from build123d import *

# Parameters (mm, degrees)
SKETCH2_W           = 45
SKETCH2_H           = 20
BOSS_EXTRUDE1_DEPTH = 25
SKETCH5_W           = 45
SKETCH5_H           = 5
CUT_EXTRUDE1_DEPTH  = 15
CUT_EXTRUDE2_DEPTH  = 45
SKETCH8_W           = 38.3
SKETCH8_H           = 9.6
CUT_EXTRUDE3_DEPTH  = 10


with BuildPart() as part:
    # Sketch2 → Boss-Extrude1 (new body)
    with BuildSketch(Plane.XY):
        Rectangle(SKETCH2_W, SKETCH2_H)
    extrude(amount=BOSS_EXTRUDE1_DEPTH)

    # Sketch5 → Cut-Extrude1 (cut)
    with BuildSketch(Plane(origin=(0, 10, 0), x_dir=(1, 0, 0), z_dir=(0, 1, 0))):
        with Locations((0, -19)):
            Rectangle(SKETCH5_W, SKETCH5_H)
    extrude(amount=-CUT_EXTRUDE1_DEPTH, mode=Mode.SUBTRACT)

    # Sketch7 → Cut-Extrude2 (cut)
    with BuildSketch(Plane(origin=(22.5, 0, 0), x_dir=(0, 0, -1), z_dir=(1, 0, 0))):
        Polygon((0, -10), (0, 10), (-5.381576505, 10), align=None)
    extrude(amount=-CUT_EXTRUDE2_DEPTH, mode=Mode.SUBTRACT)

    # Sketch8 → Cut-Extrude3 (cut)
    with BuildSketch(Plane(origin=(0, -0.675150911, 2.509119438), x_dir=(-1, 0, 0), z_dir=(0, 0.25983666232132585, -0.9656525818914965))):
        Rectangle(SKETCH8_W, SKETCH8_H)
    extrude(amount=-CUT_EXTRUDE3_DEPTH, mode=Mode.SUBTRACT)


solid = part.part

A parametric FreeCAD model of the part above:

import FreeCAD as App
import Part
import Sketcher

V = App.Vector

doc = App.newDocument("Part")
body = doc.addObject("PartDesign::Body", "Body")

sketch1 = body.newObject("Sketcher::SketchObject", "Sketch")
sketch1.AttachmentSupport = (doc.getObject("XY_Plane"), [""])
sketch1.MapMode = "FlatFace"
sketch1.addGeometry(Part.LineSegment(V(-22, 10, 0), V(-22, -10, 0)), False)
sketch1.addGeometry(Part.LineSegment(V(-22, -10, 0), V(22, -10, 0)), False)
sketch1.addGeometry(Part.LineSegment(V(22, -10, 0), V(22, 10, 0)), False)
sketch1.addGeometry(Part.LineSegment(V(22, 10, 0), V(-22, 10, 0)), False)
sketch1.addConstraint(Sketcher.Constraint("Coincident", 0, 2, 1, 1))
sketch1.addConstraint(Sketcher.Constraint("Coincident", 1, 2, 2, 1))
sketch1.addConstraint(Sketcher.Constraint("Coincident", 2, 2, 3, 1))
sketch1.addConstraint(Sketcher.Constraint("Coincident", 3, 2, 0, 1))
sketch1.addConstraint(Sketcher.Constraint("Vertical", 0))
sketch1.addConstraint(Sketcher.Constraint("Horizontal", 1))
sketch1.addConstraint(Sketcher.Constraint("Vertical", 2))
sketch1.addConstraint(Sketcher.Constraint("Horizontal", 3))
sketch1.addConstraint(Sketcher.Constraint("Symmetric", 0, 2, 2, 2, -1, 1))
sketch1.addConstraint(Sketcher.Constraint("DistanceX", 1, 1, 1, 2, 45.0))
sketch1.addConstraint(Sketcher.Constraint("DistanceY", 0, 2, 0, 1, 20.0))
pad1 = body.newObject("PartDesign::Pad", "Pad")
pad1.Profile = sketch1
pad1.Length = 25

sketch2 = body.newObject("Sketcher::SketchObject", "Sketch001")
sketch2.AttachmentSupport = (doc.getObject("XZ_Plane"), [""])
sketch2.MapMode = "FlatFace"
sketch2.AttachmentOffset = App.Placement(V(0, 0, -10), App.Rotation())
sketch2.addGeometry(Part.LineSegment(V(-22, 16, 0), V(-22, 22, 0)), False)
sketch2.addGeometry(Part.LineSegment(V(-22, 22, 0), V(22, 22, 0)), False)
sketch2.addGeometry(Part.LineSegment(V(22, 22, 0), V(22, 16, 0)), False)
sketch2.addGeometry(Part.LineSegment(V(22, 16, 0), V(-22, 16, 0)), False)
sketch2.addConstraint(Sketcher.Constraint("Coincident", 0, 2, 1, 1))
sketch2.addConstraint(Sketcher.Constraint("Coincident", 1, 2, 2, 1))
sketch2.addConstraint(Sketcher.Constraint("Coincident", 2, 2, 3, 1))
sketch2.addConstraint(Sketcher.Constraint("Coincident", 3, 2, 0, 1))
sketch2.addConstraint(Sketcher.Constraint("Vertical", 0))
sketch2.addConstraint(Sketcher.Constraint("Horizontal", 1))
sketch2.addConstraint(Sketcher.Constraint("Vertical", 2))
sketch2.addConstraint(Sketcher.Constraint("Horizontal", 3))
sketch2.addConstraint(Sketcher.Constraint("DistanceX", 1, 1, 1, 2, 45.0))
sketch2.addConstraint(Sketcher.Constraint("DistanceY", 0, 1, 0, 2, 5.0))
sketch2.addConstraint(Sketcher.Constraint("DistanceX", 0, 2, -1, 1, 22.5))
sketch2.addConstraint(Sketcher.Constraint("DistanceY", -1, 1, 0, 2, 21.5))
pocket1 = body.newObject("PartDesign::Pocket", "Pocket")
pocket1.Profile = sketch2
pocket1.Length = 15
pocket1.Reversed = True

sketch3 = body.newObject("Sketcher::SketchObject", "Sketch002")
sketch3.AttachmentSupport = (doc.getObject("YZ_Plane"), [""])
sketch3.MapMode = "FlatFace"
sketch3.AttachmentOffset = App.Placement(V(0, 0, 22.5), App.Rotation())
sketch3.addGeometry(Part.LineSegment(V(-10, 0, 0), V(10, 0, 0)), False)
sketch3.addGeometry(Part.LineSegment(V(10, 0, 0), V(10, 5, 0)), False)
sketch3.addGeometry(Part.LineSegment(V(10, 5, 0), V(-10, 0, 0)), False)
sketch3.addConstraint(Sketcher.Constraint("Coincident", 0, 2, 1, 1))
sketch3.addConstraint(Sketcher.Constraint("Coincident", 1, 2, 2, 1))
sketch3.addConstraint(Sketcher.Constraint("Coincident", 2, 2, 0, 1))
sketch3.addConstraint(Sketcher.Constraint("Horizontal", 0))
sketch3.addConstraint(Sketcher.Constraint("Vertical", 1))
sketch3.addConstraint(Sketcher.Constraint("Symmetric", 0, 2, 2, 2, -1, 1))
sketch3.addConstraint(Sketcher.Constraint("DistanceX", 0, 1, 0, 2, 20.0))
sketch3.addConstraint(Sketcher.Constraint("DistanceY", 1, 1, 1, 2, 5.381577))
pocket2 = body.newObject("PartDesign::Pocket", "Pocket001")
pocket2.Profile = sketch3
pocket2.Length = 45

sketch4 = body.newObject("Sketcher::SketchObject", "Sketch003")
sketch4.Placement = App.Placement(V(0, -0.675151, 2.509119), App.Rotation(V(-1, 0, 0), V(0, 0.965652582, 0.259836662), V(0, 0.259836662, -0.965652582), "ZXY"))
sketch4.addGeometry(Part.LineSegment(V(-19, 5, 0), V(-19, -5, 0)), False)
sketch4.addGeometry(Part.LineSegment(V(-19, -5, 0), V(19, -5, 0)), False)
sketch4.addGeometry(Part.LineSegment(V(19, -5, 0), V(19, 5, 0)), False)
sketch4.addGeometry(Part.LineSegment(V(19, 5, 0), V(-19, 5, 0)), False)
sketch4.addConstraint(Sketcher.Constraint("Coincident", 0, 2, 1, 1))
sketch4.addConstraint(Sketcher.Constraint("Coincident", 1, 2, 2, 1))
sketch4.addConstraint(Sketcher.Constraint("Coincident", 2, 2, 3, 1))
sketch4.addConstraint(Sketcher.Constraint("Coincident", 3, 2, 0, 1))
sketch4.addConstraint(Sketcher.Constraint("Vertical", 0))
sketch4.addConstraint(Sketcher.Constraint("Horizontal", 1))
sketch4.addConstraint(Sketcher.Constraint("Vertical", 2))
sketch4.addConstraint(Sketcher.Constraint("Horizontal", 3))
sketch4.addConstraint(Sketcher.Constraint("Symmetric", 0, 2, 2, 2, -1, 1))
sketch4.addConstraint(Sketcher.Constraint("DistanceX", 1, 1, 1, 2, 38.3))
sketch4.addConstraint(Sketcher.Constraint("DistanceY", 0, 2, 0, 1, 9.6))
pocket3 = body.newObject("PartDesign::Pocket", "Pocket002")
pocket3.Profile = sketch4
pocket3.Length = 10

doc.recompute()
